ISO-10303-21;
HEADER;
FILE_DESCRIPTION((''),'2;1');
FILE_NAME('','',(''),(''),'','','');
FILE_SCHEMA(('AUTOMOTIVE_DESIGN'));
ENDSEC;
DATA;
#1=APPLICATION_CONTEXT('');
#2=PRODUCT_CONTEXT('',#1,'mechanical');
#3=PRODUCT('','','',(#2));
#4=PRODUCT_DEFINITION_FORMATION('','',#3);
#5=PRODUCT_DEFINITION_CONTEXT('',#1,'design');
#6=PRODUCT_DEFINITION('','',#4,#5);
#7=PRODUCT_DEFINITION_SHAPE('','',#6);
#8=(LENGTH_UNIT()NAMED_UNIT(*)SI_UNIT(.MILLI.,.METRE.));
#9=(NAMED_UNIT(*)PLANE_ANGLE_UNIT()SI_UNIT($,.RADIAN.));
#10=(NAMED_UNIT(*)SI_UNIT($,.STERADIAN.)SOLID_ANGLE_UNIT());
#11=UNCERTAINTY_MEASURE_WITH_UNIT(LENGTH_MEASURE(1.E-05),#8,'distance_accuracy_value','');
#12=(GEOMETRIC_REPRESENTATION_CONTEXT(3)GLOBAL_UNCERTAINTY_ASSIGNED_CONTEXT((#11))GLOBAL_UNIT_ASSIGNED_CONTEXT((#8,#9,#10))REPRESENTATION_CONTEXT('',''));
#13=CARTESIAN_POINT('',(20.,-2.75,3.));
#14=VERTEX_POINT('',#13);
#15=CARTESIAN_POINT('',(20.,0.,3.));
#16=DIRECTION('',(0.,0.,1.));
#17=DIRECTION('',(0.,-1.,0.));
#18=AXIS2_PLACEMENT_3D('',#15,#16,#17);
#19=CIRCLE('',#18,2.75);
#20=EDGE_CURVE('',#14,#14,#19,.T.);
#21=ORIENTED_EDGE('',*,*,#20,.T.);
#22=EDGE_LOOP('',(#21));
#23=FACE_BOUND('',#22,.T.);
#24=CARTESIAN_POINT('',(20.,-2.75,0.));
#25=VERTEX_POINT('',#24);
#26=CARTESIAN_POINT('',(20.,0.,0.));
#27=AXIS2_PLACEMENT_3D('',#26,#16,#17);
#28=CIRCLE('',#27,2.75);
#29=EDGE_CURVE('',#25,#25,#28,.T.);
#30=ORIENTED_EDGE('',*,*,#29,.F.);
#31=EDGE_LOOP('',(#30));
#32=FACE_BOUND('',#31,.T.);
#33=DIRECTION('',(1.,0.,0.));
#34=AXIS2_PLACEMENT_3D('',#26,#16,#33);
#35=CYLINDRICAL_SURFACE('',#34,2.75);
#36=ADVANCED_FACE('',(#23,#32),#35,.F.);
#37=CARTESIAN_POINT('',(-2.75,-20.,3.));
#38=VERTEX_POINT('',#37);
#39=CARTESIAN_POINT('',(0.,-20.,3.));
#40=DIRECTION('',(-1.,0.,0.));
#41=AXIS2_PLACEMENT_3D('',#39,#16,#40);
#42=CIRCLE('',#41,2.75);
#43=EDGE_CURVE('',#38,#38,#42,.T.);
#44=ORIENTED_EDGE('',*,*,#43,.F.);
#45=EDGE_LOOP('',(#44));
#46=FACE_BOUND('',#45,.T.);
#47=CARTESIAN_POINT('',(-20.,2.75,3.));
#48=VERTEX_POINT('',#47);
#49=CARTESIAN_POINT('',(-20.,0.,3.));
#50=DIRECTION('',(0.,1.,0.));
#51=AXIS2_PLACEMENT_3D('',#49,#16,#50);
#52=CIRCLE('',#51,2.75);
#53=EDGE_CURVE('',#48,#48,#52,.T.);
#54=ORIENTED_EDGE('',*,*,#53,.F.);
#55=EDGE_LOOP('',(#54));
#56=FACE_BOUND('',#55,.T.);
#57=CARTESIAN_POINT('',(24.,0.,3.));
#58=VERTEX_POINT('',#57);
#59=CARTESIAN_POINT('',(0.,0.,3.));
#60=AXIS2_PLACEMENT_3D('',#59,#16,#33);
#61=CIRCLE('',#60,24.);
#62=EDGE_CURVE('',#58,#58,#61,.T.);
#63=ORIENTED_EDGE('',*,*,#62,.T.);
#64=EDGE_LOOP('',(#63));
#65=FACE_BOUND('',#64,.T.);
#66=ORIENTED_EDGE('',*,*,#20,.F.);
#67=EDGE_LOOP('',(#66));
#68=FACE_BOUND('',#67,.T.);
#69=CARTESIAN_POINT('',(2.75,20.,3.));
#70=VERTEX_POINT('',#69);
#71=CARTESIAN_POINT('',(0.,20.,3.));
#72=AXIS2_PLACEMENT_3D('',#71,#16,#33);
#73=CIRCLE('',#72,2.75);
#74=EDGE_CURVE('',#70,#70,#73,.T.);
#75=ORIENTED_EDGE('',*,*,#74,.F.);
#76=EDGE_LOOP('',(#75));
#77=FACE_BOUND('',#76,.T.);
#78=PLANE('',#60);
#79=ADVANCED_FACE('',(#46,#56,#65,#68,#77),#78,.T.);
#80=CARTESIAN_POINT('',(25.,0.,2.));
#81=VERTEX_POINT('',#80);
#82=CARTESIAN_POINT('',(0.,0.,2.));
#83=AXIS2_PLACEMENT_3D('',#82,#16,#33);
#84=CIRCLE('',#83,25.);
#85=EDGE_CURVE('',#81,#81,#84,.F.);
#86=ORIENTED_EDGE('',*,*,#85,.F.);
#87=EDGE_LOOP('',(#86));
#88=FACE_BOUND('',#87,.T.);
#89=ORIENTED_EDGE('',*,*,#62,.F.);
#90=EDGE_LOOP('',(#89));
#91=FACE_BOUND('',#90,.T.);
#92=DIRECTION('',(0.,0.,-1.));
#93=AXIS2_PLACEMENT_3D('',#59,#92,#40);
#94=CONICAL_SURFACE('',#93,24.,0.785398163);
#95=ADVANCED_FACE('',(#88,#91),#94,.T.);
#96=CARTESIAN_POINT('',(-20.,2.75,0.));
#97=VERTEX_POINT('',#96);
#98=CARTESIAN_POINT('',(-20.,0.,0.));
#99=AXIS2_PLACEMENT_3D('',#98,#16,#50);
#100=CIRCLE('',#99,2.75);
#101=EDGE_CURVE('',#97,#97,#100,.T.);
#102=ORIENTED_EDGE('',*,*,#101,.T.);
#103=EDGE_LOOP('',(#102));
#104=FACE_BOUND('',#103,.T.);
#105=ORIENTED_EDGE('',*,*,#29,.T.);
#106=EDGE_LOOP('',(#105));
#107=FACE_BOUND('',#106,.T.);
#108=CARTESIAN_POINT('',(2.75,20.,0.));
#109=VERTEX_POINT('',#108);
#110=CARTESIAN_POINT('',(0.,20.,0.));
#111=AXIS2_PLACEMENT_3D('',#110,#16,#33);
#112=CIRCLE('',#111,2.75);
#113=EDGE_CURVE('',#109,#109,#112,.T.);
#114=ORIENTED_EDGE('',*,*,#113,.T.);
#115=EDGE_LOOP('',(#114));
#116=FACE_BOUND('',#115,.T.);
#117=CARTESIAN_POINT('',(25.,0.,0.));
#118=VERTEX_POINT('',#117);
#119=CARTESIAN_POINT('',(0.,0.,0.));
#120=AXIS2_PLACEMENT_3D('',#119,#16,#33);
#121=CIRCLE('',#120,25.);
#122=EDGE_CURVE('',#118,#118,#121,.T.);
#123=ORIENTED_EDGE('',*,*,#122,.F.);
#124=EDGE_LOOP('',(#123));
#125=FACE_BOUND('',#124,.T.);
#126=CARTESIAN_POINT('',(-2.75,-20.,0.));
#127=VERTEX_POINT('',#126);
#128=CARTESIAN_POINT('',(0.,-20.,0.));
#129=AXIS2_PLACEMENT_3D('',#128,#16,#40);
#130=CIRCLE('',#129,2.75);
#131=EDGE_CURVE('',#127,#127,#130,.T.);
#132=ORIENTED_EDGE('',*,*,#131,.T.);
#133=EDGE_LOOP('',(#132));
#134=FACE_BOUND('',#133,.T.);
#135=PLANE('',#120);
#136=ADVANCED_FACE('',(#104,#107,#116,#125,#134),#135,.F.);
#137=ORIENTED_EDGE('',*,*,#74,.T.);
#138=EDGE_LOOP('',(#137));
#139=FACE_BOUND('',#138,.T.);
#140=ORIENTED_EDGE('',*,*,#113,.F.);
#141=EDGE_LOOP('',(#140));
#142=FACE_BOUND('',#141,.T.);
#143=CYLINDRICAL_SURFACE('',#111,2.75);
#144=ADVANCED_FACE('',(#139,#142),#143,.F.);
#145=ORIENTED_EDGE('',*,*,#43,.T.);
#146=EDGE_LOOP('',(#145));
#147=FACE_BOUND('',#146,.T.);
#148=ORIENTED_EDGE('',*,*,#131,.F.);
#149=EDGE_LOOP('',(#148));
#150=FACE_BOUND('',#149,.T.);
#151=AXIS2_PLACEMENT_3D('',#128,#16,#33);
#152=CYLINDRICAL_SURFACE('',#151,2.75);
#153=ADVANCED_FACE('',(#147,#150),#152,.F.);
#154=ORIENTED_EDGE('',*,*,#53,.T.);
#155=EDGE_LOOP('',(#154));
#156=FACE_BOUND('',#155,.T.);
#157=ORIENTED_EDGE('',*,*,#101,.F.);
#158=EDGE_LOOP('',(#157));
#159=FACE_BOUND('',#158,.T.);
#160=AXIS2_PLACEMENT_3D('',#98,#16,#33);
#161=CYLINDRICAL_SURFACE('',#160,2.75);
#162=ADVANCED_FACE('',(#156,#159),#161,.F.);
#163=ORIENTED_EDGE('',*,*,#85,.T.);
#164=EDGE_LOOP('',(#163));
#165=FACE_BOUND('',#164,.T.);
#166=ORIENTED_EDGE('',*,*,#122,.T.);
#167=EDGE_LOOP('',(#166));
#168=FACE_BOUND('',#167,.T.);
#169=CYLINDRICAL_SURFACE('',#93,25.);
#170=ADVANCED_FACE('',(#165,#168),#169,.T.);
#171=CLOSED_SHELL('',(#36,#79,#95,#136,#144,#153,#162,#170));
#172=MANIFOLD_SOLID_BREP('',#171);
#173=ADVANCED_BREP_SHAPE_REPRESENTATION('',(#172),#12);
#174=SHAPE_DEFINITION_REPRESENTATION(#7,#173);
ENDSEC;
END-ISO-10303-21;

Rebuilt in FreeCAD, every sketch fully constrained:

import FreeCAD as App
import Part
import Sketcher


def edges_at(feature, points):
    """Names of the edges that pass closest to the given points."""
    edges = feature.Shape.Edges
    near = lambda p: min(range(len(edges)), key=lambda i: edges[i].distToShape(Part.Vertex(*p))[0])
    return sorted({f"Edge{near(p) + 1}" for p in points})

doc = App.newDocument("Part")
body = doc.addObject("PartDesign::Body", "Body")

# Sketch on XY plane
sketch1 = doc.addObject("Sketcher::SketchObject", "Sketch")
body.addObject(sketch1)
sketch1.AttachmentSupport = (doc.XY_Plane, [""])
sketch1.MapMode = "FlatFace"
sketch1.addGeometry(Part.Circle(App.Vector(0, 0, 0), App.Vector(0, 0, 1), 25), False)
sketch1.addConstraint([
    Sketcher.Constraint("Coincident", 0, 3, -1, 1),
    Sketcher.Constraint("Diameter", 0, 50.0),
])
pad1 = doc.addObject("PartDesign::Pad", "Pad")
body.addObject(pad1)
pad1.Profile = sketch1
pad1.Length = 3
doc.recompute()

chamfer = doc.addObject("PartDesign::Chamfer", "Chamfer")
body.addObject(chamfer)
chamfer.Base = (pad1, edges_at(pad1, [(-25, 0, 3)]))
chamfer.Size = 1

# Sketch on XY plane
sketch2 = doc.addObject("Sketcher::SketchObject", "Sketch001")
body.addObject(sketch2)
sketch2.AttachmentSupport = (doc.XY_Plane, [""])
sketch2.MapMode = "FlatFace"
sketch2.AttachmentOffset = App.Placement(App.Vector(0, 0, 3), App.Rotation())
sketch2.addGeometry(Part.Circle(App.Vector(0, 20, 0), App.Vector(0, 0, 1), 2.75), False)
sketch2.addConstraint([
    Sketcher.Constraint("PointOnObject", 0, 3, -2),
    Sketcher.Constraint("Diameter", 0, 5.5),
    Sketcher.Constraint("DistanceY", -1, 1, 0, 3, 20.0),
])
pocket1 = doc.addObject("PartDesign::Pocket", "Pocket")
body.addObject(pocket1)
pocket1.Profile = sketch2
pocket1.Type = "ThroughAll"
doc.recompute()

polarpattern = doc.addObject("PartDesign::PolarPattern", "PolarPattern")
body.addObject(polarpattern)
polarpattern.Originals = [pocket1]
polarpattern.Axis = (doc.Z_Axis, [""])
polarpattern.Angle = 360
polarpattern.Occurrences = 4
body.Tip = polarpattern

doc.recompute()
